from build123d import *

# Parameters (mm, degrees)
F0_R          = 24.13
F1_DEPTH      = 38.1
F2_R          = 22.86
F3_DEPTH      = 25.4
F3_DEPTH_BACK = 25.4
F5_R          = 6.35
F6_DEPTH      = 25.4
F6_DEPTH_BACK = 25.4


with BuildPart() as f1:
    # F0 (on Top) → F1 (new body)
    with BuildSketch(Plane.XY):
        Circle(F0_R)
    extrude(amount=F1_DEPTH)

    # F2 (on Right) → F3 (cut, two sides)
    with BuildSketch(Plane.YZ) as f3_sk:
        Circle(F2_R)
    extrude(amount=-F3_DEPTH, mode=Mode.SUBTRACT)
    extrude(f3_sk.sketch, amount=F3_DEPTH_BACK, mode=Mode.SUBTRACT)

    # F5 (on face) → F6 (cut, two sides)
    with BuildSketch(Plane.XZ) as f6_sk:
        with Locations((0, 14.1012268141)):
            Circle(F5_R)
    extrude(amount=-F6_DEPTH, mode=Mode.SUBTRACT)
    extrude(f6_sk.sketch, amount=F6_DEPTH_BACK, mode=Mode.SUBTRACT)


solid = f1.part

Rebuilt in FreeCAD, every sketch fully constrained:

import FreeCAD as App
import Part
import Sketcher
Q = App.Units.Quantity

doc = App.newDocument("Part")
params = doc.addObject("Spreadsheet::Sheet", "Params")
for row, (alias, value) in enumerate([
    ("sketch1_diameter", "1.9 in"),
    ("pad1_length", "1.5 in"),
    ("sketch2_diameter", "1.8 in"),
    ("sketch3_diameter", "0.5 in"),
], start=1):
    params.set(f"A{row}", alias)
    params.set(f"B{row}", "=" + value)
    params.setAlias(f"B{row}", alias)

body = doc.addObject("PartDesign::Body", "Body")

sketch1 = doc.addObject("Sketcher::SketchObject", "Sketch")
body.addObject(sketch1)
sketch1.AttachmentSupport = (doc.XY_Plane, [""])
sketch1.MapMode = "FlatFace"
sketch1.addGeometry(Part.Circle(App.Vector(0, 0, 0), App.Vector(0, 0, 1), 24), False)
sketch1.addConstraint([
    Sketcher.Constraint("Coincident", 0, 3, -1, 1),
    Sketcher.Constraint("Diameter", 0, Q("1.9 in")),
])
sketch1.setExpression("Constraints[1]", "Params.sketch1_diameter")
pad1 = doc.addObject("PartDesign::Pad", "Pad")
body.addObject(pad1)
pad1.Profile = sketch1
pad1.setExpression("Length", "Params.pad1_length")

sketch2 = doc.addObject("Sketcher::SketchObject", "Sketch001")
body.addObject(sketch2)
sketch2.AttachmentSupport = (doc.YZ_Plane, [""])
sketch2.MapMode = "FlatFace"
sketch2.addGeometry(Part.Circle(App.Vector(0, 0, 0), App.Vector(0, 0, 1), 23), False)
sketch2.addConstraint([
    Sketcher.Constraint("Coincident", 0, 3, -1, 1),
    Sketcher.Constraint("Diameter", 0, Q("1.8 in")),
])
sketch2.setExpression("Constraints[1]", "Params.sketch2_diameter")
pocket1 = doc.addObject("PartDesign::Pocket", "Pocket")
body.addObject(pocket1)
pocket1.Profile = sketch2
pocket1.Type = "ThroughAll"
pocket1.Midplane = True

sketch3 = doc.addObject("Sketcher::SketchObject", "Sketch002")
body.addObject(sketch3)
sketch3.AttachmentSupport = (doc.XZ_Plane, [""])
sketch3.MapMode = "FlatFace"
sketch3.addGeometry(Part.Circle(App.Vector(0, 14, 0), App.Vector(0, 0, 1), 6), False)
sketch3.addConstraint([
    Sketcher.Constraint("PointOnObject", 0, 3, -2),
    Sketcher.Constraint("Diameter", 0, Q("0.5 in")),
    Sketcher.Constraint("DistanceY", -1, 1, 0, 3, Q("14.101227 mm")),
])
sketch3.setExpression("Constraints[1]", "Params.sketch3_diameter")
pocket2 = doc.addObject("PartDesign::Pocket", "Pocket001")
body.addObject(pocket2)
pocket2.Profile = sketch3
pocket2.Type = "ThroughAll"
pocket2.Midplane = True

doc.recompute()
